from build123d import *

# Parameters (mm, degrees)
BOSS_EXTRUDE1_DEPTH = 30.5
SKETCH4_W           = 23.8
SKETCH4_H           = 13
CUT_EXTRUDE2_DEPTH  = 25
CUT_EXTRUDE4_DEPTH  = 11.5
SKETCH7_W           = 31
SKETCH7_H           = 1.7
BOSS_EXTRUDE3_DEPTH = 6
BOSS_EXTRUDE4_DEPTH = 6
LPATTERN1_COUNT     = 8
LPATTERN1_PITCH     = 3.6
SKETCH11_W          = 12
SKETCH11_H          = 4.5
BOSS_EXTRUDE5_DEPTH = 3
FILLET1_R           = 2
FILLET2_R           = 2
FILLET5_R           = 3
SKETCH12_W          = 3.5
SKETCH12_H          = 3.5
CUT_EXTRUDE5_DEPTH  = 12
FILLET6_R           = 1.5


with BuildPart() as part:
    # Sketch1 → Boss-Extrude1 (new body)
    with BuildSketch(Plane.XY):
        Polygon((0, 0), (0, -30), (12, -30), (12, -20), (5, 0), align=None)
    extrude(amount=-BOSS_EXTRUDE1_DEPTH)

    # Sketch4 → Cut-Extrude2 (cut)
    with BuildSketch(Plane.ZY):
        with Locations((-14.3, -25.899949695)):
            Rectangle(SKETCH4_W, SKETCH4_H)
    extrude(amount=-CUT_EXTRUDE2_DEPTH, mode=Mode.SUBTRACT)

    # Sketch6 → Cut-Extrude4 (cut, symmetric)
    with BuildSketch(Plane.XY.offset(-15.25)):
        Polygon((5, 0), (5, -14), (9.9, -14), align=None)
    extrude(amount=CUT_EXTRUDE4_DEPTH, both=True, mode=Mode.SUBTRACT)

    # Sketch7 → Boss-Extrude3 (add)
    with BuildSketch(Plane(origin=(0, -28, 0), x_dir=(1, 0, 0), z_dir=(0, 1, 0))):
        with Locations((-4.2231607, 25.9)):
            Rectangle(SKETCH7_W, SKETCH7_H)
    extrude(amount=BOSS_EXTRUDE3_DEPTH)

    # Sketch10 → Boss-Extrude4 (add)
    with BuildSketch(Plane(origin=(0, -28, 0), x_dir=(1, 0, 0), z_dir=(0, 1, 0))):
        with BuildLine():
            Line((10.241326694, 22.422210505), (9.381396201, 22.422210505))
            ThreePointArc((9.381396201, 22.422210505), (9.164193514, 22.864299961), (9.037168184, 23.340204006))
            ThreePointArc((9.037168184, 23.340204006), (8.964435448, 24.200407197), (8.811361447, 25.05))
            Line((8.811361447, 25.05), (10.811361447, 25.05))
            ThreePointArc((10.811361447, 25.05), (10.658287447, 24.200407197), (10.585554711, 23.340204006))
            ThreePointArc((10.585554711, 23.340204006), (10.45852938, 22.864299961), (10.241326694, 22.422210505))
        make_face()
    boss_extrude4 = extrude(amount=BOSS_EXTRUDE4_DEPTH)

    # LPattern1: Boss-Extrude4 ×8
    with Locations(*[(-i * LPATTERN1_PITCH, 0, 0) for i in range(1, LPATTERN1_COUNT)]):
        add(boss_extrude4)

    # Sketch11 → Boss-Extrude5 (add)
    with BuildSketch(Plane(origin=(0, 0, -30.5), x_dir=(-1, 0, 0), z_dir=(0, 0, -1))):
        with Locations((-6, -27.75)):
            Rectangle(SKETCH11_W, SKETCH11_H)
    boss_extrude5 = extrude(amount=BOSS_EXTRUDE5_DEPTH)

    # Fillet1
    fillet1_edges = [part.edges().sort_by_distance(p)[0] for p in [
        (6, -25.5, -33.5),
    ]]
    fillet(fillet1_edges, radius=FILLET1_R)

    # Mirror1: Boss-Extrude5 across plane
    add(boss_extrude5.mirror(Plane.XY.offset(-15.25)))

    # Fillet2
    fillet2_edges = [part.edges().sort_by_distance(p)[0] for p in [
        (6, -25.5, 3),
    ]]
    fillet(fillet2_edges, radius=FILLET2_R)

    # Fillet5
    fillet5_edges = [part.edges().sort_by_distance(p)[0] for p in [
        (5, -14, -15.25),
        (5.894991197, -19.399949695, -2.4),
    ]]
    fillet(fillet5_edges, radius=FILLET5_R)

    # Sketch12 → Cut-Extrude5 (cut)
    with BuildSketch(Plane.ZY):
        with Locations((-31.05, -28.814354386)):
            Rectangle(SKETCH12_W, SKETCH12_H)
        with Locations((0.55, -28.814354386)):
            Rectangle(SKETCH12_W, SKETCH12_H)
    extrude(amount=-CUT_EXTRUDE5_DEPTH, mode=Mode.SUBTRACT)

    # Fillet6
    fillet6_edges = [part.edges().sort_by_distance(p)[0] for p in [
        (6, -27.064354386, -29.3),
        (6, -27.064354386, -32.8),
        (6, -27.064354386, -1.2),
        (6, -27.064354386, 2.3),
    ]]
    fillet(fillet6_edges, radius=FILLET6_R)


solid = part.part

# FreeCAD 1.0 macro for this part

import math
import FreeCAD as App
import Part
import Sketcher

V = App.Vector


def edges_at(feature, points):
    """Names of the edges that pass closest to the given points."""
    edges = feature.Shape.Edges
    near = lambda p: min(range(len(edges)), key=lambda i: edges[i].distToShape(Part.Vertex(*p))[0])
    return sorted({f"Edge{near(p) + 1}" for p in points})

doc = App.newDocument("Part")
body = doc.addObject("PartDesign::Body", "Body")

sketch1 = body.newObject("Sketcher::SketchObject", "Sketch")
sketch1.AttachmentSupport = (doc.getObject("XY_Plane"), [""])
sketch1.MapMode = "FlatFace"
sketch1.addGeometry([
    Part.LineSegment(V(0, 0, 0), V(0, -30, 0)),
    Part.LineSegment(V(0, -30, 0), V(12, -30, 0)),
    Part.LineSegment(V(12, -30, 0), V(12, -20, 0)),
    Part.LineSegment(V(12, -20, 0), V(5, 0, 0)),
    Part.LineSegment(V(5, 0, 0), V(0, 0, 0)),
], False)
sketch1.addConstraint([
    Sketcher.Constraint("Coincident", 0, 2, 1, 1),
    Sketcher.Constraint("Coincident", 1, 2, 2, 1),
    Sketcher.Constraint("Coincident", 2, 2, 3, 1),
    Sketcher.Constraint("Coincident", 3, 2, 4, 1),
    Sketcher.Constraint("Coincident", 4, 2, 0, 1),
    Sketcher.Constraint("Vertical", 0),
    Sketcher.Constraint("Horizontal", 1),
    Sketcher.Constraint("Vertical", 2),
    Sketcher.Constraint("Horizontal", 4),
    Sketcher.Constraint("Coincident", 4, 2, -1, 1),
    Sketcher.Constraint("DistanceX", 1, 1, 1, 2, 12.0),
    Sketcher.Constraint("DistanceX", 4, 2, 4, 1, 5.0),
    Sketcher.Constraint("DistanceY", 0, 2, 0, 1, 30.0),
    Sketcher.Constraint("DistanceY", 2, 1, 2, 2, 10.0),
])
pad1 = body.newObject("PartDesign::Pad", "Pad")
pad1.Profile = sketch1
pad1.Length = 30.5
pad1.Reversed = True

sketch2 = body.newObject("Sketcher::SketchObject", "Sketch001")
sketch2.AttachmentSupport = (doc.getObject("YZ_Plane"), [""])
sketch2.MapMode = "FlatFace"
sketch2.addGeometry([
    Part.LineSegment(V(-19.39995, -26.2, 0), V(-32.39995, -26.2, 0)),
    Part.LineSegment(V(-32.39995, -26.2, 0), V(-32.39995, -2.4, 0)),
    Part.LineSegment(V(-32.39995, -2.4, 0), V(-19.39995, -2.4, 0)),
    Part.LineSegment(V(-19.39995, -2.4, 0), V(-19.39995, -26.2, 0)),
], False)
sketch2.addConstraint([
    Sketcher.Constraint("Coincident", 0, 2, 1, 1),
    Sketcher.Constraint("Coincident", 1, 2, 2, 1),
    Sketcher.Constraint("Coincident", 2, 2, 3, 1),
    Sketcher.Constraint("Coincident", 3, 2, 0, 1),
    Sketcher.Constraint("Horizontal", 0),
    Sketcher.Constraint("Vertical", 1),
    Sketcher.Constraint("Horizontal", 2),
    Sketcher.Constraint("Vertical", 3),
    Sketcher.Constraint("DistanceX", 0, 2, 0, 1, 13.0),
    Sketcher.Constraint("DistanceY", 1, 1, 1, 2, 23.8),
    Sketcher.Constraint("DistanceY", 0, 2, -1, 1, 26.2),
    Sketcher.Constraint("DistanceX", 0, 2, -1, 1, 32.39995),
])
pocket1 = body.newObject("PartDesign::Pocket", "Pocket")
pocket1.Profile = sketch2
pocket1.Length = 25
pocket1.Reversed = True

sketch3 = body.newObject("Sketcher::SketchObject", "Sketch002")
sketch3.AttachmentSupport = (doc.getObject("XY_Plane"), [""])
sketch3.MapMode = "FlatFace"
sketch3.AttachmentOffset = App.Placement(V(0, 0, -15.25), App.Rotation())
sketch3.addGeometry([
    Part.LineSegment(V(5, 0, 0), V(5, -14, 0)),
    Part.LineSegment(V(5, -14, 0), V(9.9, -14, 0)),
    Part.LineSegment(V(9.9, -14, 0), V(5, 0, 0)),
], False)
sketch3.addConstraint([
    Sketcher.Constraint("Coincident", 0, 2, 1, 1),
    Sketcher.Constraint("Coincident", 1, 2, 2, 1),
    Sketcher.Constraint("Coincident", 2, 2, 0, 1),
    Sketcher.Constraint("Vertical", 0),
    Sketcher.Constraint("Horizontal", 1),
    Sketcher.Constraint("PointOnObject", 2, 2, -1),
    Sketcher.Constraint("DistanceY", 0, 2, 0, 1, 14.0),
    Sketcher.Constraint("DistanceX", 1, 1, 1, 2, 4.9),
    Sketcher.Constraint("DistanceX", -1, 1, 0, 2, 5.0),
])
pocket2 = body.newObject("PartDesign::Pocket", "Pocket001")
pocket2.Profile = sketch3
pocket2.Length = 23
pocket2.Midplane = True

sketch4 = body.newObject("Sketcher::SketchObject", "Sketch003")
sketch4.AttachmentSupport = (doc.getObject("XZ_Plane"), [""])
sketch4.MapMode = "FlatFace"
sketch4.AttachmentOffset = App.Placement(V(0, 0, 28), App.Rotation())
sketch4.addGeometry([
    Part.LineSegment(V(-19.723161, -26.75, 0), V(-19.723161, -25.05, 0)),
    Part.LineSegment(V(-19.723161, -25.05, 0), V(11.276839, -25.05, 0)),
    Part.LineSegment(V(11.276839, -25.05, 0), V(11.276839, -26.75, 0)),
    Part.LineSegment(V(11.276839, -26.75, 0), V(-19.723161, -26.75, 0)),
], False)
sketch4.addConstraint([
    Sketcher.Constraint("Coincident", 0, 2, 1, 1),
    Sketcher.Constraint("Coincident", 1, 2, 2, 1),
    Sketcher.Constraint("Coincident", 2, 2, 3, 1),
    Sketcher.Constraint("Coincident", 3, 2, 0, 1),
    Sketcher.Constraint("Vertical", 0),
    Sketcher.Constraint("Horizontal", 1),
    Sketcher.Constraint("Vertical", 2),
    Sketcher.Constraint("Horizontal", 3),
    Sketcher.Constraint("DistanceX", 1, 1, 1, 2, 31.0),
    Sketcher.Constraint("DistanceY", 0, 1, 0, 2, 1.7),
    Sketcher.Constraint("DistanceY", 0, 2, -1, 1, 25.05),
    Sketcher.Constraint("DistanceX", 0, 2, -1, 1, 19.723161),
])
pad2 = body.newObject("PartDesign::Pad", "Pad001")
pad2.Profile = sketch4
pad2.Length = 6
pad2.Reversed = True

sketch5 = body.newObject("Sketcher::SketchObject", "Sketch004")
sketch5.AttachmentSupport = (doc.getObject("XZ_Plane"), [""])
sketch5.MapMode = "FlatFace"
sketch5.AttachmentOffset = App.Placement(V(0, 0, 28), App.Rotation())
sketch5.addGeometry([
    Part.LineSegment(V(9.381396, -22.422211, 0), V(10.241327, -22.422211, 0)),
    Part.ArcOfCircle(Part.Circle(V(8.099722, -23.748802, 0), V(0, 0, 1), 2.51919), math.radians(9.33429), math.radians(31.775661)),
    Part.ArcOfCircle(Part.Circle(V(19.7752, -22.996369, 0), V(0, 0, 1), 9.196075), math.radians(-177.857248), math.radians(-167.096124)),
    Part.LineSegment(V(10.811361, -25.05, 0), V(8.811361, -25.05, 0)),
    Part.ArcOfCircle(Part.Circle(V(-0.152477, -22.996369, 0), V(0, 0, 1), 9.196075), math.radians(-12.903876), math.radians(-2.142752)),
    Part.ArcOfCircle(Part.Circle(V(11.523001, -23.748802, 0), V(0, 0, 1), 2.51919), math.radians(148.224339), math.radians(170.66571)),
], False)
sketch5.addConstraint([
    Sketcher.Constraint("Coincident", 0, 2, 1, 2),
    Sketcher.Constraint("Coincident", 1, 1, 2, 1),
    Sketcher.Constraint("Coincident", 2, 2, 3, 1),
    Sketcher.Constraint("Coincident", 3, 2, 4, 1),
    Sketcher.Constraint("Coincident", 4, 2, 5, 2),
    Sketcher.Constraint("Coincident", 5, 1, 0, 1),
    Sketcher.Constraint("Horizontal", 0),
    Sketcher.Constraint("Horizontal", 3),
    Sketcher.Constraint("Equal", 2, 4),
    Sketcher.Constraint("Equal", 1, 5),
    Sketcher.Constraint("Horizontal", 2, 3, 4, 3),
    Sketcher.Constraint("Horizontal", 1, 3, 5, 3),
    Sketcher.Constraint("Horizontal", 1, 1, 4, 2),
    Sketcher.Constraint("DistanceX", 3, 2, 3, 1, 2.0),
    Sketcher.Constraint("DistanceY", 2, 2, -1, 1, 25.05),
    Sketcher.Constraint("Radius", 1, 2.51919),
    Sketcher.Constraint("DistanceX", -1, 1, 5, 3, 11.523001),
    Sketcher.Constraint("Radius", 2, 9.196075),
    Sketcher.Constraint("DistanceX", 0, 1, 0, 2, 0.85993),
    Sketcher.Constraint("DistanceX", -1, 1, 2, 3, 19.7752),
    Sketcher.Constraint("DistanceY", 5, 3, 1, 1, 0.408598),
    Sketcher.Constraint("DistanceY", 2, 3, -1, 1, 22.996369),
])
pad3 = body.newObject("PartDesign::Pad", "Pad002")
pad3.Profile = sketch5
pad3.Length = 6
pad3.Reversed = True
doc.recompute()

linearpattern = body.newObject("PartDesign::LinearPattern", "LinearPattern")
linearpattern.Originals = [pad3]
linearpattern.Direction = (doc.getObject("X_Axis"), [""])
linearpattern.Mode = "offset"
linearpattern.Offset = 3.6
linearpattern.Occurrences = 8
linearpattern.Reversed = True
body.Tip = linearpattern

sketch6 = body.newObject("Sketcher::SketchObject", "Sketch005")
sketch6.AttachmentSupport = (doc.getObject("XY_Plane"), [""])
sketch6.MapMode = "FlatFace"
sketch6.AttachmentOffset = App.Placement(V(0, 0, -30.5), App.Rotation())
sketch6.addGeometry([
    Part.LineSegment(V(12, -25.5, 0), V(12, -30, 0)),
    Part.LineSegment(V(12, -30, 0), V(0, -30, 0)),
    Part.LineSegment(V(0, -30, 0), V(0, -25.5, 0)),
    Part.LineSegment(V(0, -25.5, 0), V(12, -25.5, 0)),
], False)
sketch6.addConstraint([
    Sketcher.Constraint("Coincident", 0, 2, 1, 1),
    Sketcher.Constraint("Coincident", 1, 2, 2, 1),
    Sketcher.Constraint("Coincident", 2, 2, 3, 1),
    Sketcher.Constraint("Coincident", 3, 2, 0, 1),
    Sketcher.Constraint("Vertical", 0),
    Sketcher.Constraint("Horizontal", 1),
    Sketcher.Constraint("Vertical", 2),
    Sketcher.Constraint("Horizontal", 3),
    Sketcher.Constraint("PointOnObject", 1, 2, -2),
    Sketcher.Constraint("DistanceX", 1, 2, 1, 1, 12.0),
    Sketcher.Constraint("DistanceY", 0, 2, 0, 1, 4.5),
    Sketcher.Constraint("DistanceY", 0, 2, -1, 1, 30.0),
])
pad4 = body.newObject("PartDesign::Pad", "Pad003")
pad4.Profile = sketch6
pad4.Length = 3
pad4.Reversed = True
doc.recompute()

fillet = body.newObject("PartDesign::Fillet", "Fillet")
fillet.Base = (pad4, edges_at(pad4, [(6, -25.5, -33.5)]))
fillet.Radius = 2
doc.recompute()

datumplane = body.newObject("PartDesign::Plane", "DatumPlane")
datumplane.AttachmentSupport = (doc.getObject("XY_Plane"), [""])
datumplane.MapMode = "FlatFace"
datumplane.AttachmentOffset = App.Placement(V(0, 0, -15.25), App.Rotation())
mirrored = body.newObject("PartDesign::Mirrored", "Mirrored")
mirrored.Originals = [pad4]
mirrored.MirrorPlane = (datumplane, [""])
body.Tip = mirrored
doc.recompute()

fillet2 = body.newObject("PartDesign::Fillet", "Fillet001")
fillet2.Base = (mirrored, edges_at(mirrored, [(6, -25.5, 3)]))
fillet2.Radius = 2
doc.recompute()

fillet3 = body.newObject("PartDesign::Fillet", "Fillet002")
fillet3.Base = (fillet2, edges_at(fillet2, [(5, -14, -15.25), (5.895, -19.4, -2.4)]))
fillet3.Radius = 3

sketch7 = body.newObject("Sketcher::SketchObject", "Sketch006")
sketch7.AttachmentSupport = (doc.getObject("YZ_Plane"), [""])
sketch7.MapMode = "FlatFace"
sketch7.addGeometry([
    Part.LineSegment(V(-27.064354, -32.8, 0), V(-30.564354, -32.8, 0)),
    Part.LineSegment(V(-30.564354, -32.8, 0), V(-30.564354, -29.3, 0)),
    Part.LineSegment(V(-30.564354, -29.3, 0), V(-27.064354, -29.3, 0)),
    Part.LineSegment(V(-27.064354, -29.3, 0), V(-27.064354, -32.8, 0)),
    Part.LineSegment(V(-27.064354, -1.2, 0), V(-30.564354, -1.2, 0)),
    Part.LineSegment(V(-30.564354, -1.2, 0), V(-30.564354, 2.3, 0)),
    Part.LineSegment(V(-30.564354, 2.3, 0), V(-27.064354, 2.3, 0)),
    Part.LineSegment(V(-27.064354, 2.3, 0), V(-27.064354, -1.2, 0)),
], False)
sketch7.addConstraint([
    Sketcher.Constraint("Coincident", 0, 2, 1, 1),
    Sketcher.Constraint("Coincident", 1, 2, 2, 1),
    Sketcher.Constraint("Coincident", 2, 2, 3, 1),
    Sketcher.Constraint("Coincident", 3, 2, 0, 1),
    Sketcher.Constraint("Coincident", 4, 2, 5, 1),
    Sketcher.Constraint("Coincident", 5, 2, 6, 1),
    Sketcher.Constraint("Coincident", 6, 2, 7, 1),
    Sketcher.Constraint("Coincident", 7, 2, 4, 1),
    Sketcher.Constraint("Horizontal", 0),
    Sketcher.Constraint("Vertical", 1),
    Sketcher.Constraint("Horizontal", 2),
    Sketcher.Constraint("Vertical", 3),
    Sketcher.Constraint("Horizontal", 4),
    Sketcher.Constraint("Vertical", 5),
    Sketcher.Constraint("Horizontal", 6),
    Sketcher.Constraint("Vertical", 7),
    Sketcher.Constraint("Vertical", 1, 2, 4, 2),
    Sketcher.Constraint("Vertical", 3, 2, 6, 2),
    Sketcher.Constraint("Equal", 6, 1),
    Sketcher.Constraint("Equal", 3, 5),
    Sketcher.Constraint("DistanceX", 0, 2, 0, 1, 3.5),
    Sketcher.Constraint("DistanceY", 0, 2, -1, 1, 32.8),
    Sketcher.Constraint("DistanceY", 4, 2, -1, 1, 1.2),
    Sketcher.Constraint("DistanceX", 0, 2, -1, 1, 30.564354),
])
pocket3 = body.newObject("PartDesign::Pocket", "Pocket002")
pocket3.Profile = sketch7
pocket3.Length = 12
pocket3.Reversed = True
doc.recompute()

fillet4 = body.newObject("PartDesign::Fillet", "Fillet003")
fillet4.Base = (pocket3, edges_at(pocket3, [
    (6, -27.064, -29.3),
    (6, -27.064, -32.8),
    (6, -27.064, -1.2),
    (6, -27.064, 2.3),
]))
fillet4.Radius = 1.5

doc.recompute()
